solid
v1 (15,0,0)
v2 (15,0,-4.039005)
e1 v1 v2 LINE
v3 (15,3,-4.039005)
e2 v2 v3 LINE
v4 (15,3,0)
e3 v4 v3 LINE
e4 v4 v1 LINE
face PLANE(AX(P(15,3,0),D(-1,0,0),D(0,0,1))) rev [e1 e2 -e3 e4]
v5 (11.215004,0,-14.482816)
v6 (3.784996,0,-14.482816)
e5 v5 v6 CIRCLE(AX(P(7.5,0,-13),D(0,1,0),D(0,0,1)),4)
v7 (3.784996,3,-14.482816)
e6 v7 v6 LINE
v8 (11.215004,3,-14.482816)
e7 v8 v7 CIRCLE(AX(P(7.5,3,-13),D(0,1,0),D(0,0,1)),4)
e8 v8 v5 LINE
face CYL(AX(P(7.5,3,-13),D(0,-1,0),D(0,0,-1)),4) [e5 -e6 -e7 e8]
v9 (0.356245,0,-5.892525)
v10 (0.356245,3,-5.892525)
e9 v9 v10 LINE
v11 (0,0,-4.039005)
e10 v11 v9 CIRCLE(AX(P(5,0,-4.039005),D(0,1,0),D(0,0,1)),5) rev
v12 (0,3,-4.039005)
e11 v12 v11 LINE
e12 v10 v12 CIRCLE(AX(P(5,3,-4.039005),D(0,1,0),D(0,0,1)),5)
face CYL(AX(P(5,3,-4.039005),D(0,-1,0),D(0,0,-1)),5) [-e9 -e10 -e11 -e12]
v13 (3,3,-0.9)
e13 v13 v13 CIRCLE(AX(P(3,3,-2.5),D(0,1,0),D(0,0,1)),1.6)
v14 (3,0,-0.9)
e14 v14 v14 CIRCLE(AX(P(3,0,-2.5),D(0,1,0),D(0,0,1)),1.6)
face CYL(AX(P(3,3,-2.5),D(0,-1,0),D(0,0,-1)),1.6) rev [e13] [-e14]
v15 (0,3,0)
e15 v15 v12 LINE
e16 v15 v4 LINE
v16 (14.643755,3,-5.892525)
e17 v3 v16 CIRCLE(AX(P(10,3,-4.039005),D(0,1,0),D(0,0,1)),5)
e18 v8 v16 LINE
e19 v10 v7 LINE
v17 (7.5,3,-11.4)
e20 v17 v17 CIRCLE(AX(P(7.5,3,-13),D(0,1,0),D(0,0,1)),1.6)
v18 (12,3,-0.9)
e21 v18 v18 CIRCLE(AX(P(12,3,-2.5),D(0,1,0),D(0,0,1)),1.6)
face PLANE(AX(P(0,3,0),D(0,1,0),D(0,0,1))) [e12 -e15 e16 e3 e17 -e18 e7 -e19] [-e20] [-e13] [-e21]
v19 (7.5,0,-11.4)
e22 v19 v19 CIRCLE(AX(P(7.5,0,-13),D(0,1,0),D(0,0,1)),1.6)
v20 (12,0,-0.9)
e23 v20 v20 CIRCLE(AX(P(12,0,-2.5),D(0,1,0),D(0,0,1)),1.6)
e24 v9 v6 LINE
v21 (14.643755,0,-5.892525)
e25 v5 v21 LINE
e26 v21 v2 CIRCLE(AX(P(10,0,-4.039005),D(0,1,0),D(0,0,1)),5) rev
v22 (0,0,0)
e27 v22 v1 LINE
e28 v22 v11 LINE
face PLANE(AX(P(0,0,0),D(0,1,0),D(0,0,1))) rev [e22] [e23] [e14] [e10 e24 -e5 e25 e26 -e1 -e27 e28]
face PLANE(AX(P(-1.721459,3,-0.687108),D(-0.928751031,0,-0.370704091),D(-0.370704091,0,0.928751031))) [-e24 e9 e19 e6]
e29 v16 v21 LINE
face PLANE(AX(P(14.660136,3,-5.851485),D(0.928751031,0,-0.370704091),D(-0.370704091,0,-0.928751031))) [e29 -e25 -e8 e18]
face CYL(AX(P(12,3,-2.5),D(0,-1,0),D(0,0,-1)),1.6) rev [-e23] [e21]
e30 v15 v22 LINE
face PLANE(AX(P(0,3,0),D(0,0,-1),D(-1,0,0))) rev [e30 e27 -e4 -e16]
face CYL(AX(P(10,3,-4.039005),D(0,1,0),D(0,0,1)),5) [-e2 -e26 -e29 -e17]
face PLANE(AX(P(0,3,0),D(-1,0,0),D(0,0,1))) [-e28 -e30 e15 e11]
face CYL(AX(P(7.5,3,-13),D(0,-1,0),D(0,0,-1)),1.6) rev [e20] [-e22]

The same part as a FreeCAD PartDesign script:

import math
import FreeCAD as App
import Part
import Sketcher

V = App.Vector
Q = App.Units.Quantity


def edges_at(feature, points):
    """Names of the edges that pass closest to the given points."""
    edges = feature.Shape.Edges
    near = lambda p: min(range(len(edges)), key=lambda i: edges[i].distToShape(Part.Vertex(*p))[0])
    return sorted({f"Edge{near(p) + 1}" for p in points})

doc = App.newDocument("Part")
body = doc.addObject("PartDesign::Body", "Body")

# Sketch on XZ plane
sketch1 = body.newObject("Sketcher::SketchObject", "Sketch")
sketch1.AttachmentSupport = (doc.getObject("XZ_Plane"), [""])
sketch1.MapMode = "FlatFace"
sketch1.addGeometry([
    Part.LineSegment(V(0, -5, 0), V(0, 0, 0)),  # 0
    Part.LineSegment(V(0, 0, 0), V(15, 0, 0)),  # 1
    Part.LineSegment(V(15, 0, 0), V(15, -5, 0)),  # 2
    Part.LineSegment(V(15, -5, 0), V(11.215004, -14.482816, 0)),  # 3
    Part.ArcOfCircle(Part.Circle(V(7.5, -13, 0), V(0, 0, 1), 4), math.radians(-158.240953), math.radians(-21.759047)),  # 4
    Part.LineSegment(V(3.784996, -14.482816, 0), V(0, -5, 0)),  # 5
    Part.Circle(V(3, -2.5, 0), V(0, 0, 1), 1.6),  # 6
    Part.Circle(V(12, -2.5, 0), V(0, 0, 1), 1.6),  # 7
    Part.Circle(V(7.5, -13, 0), V(0, 0, 1), 1.6),  # 8
], False)
sketch1.addConstraint([
    Sketcher.Constraint("Coincident", 0, 2, 1, 1),
    Sketcher.Constraint("Coincident", 1, 2, 2, 1),
    Sketcher.Constraint("Coincident", 2, 2, 3, 1),
    Sketcher.Constraint("Tangent", 3, 2, 4, 2),
    Sketcher.Constraint("Tangent", 4, 1, 5, 1),
    Sketcher.Constraint("Coincident", 5, 2, 0, 1),
    Sketcher.Constraint("Vertical", 0),
    Sketcher.Constraint("Horizontal", 1),
    Sketcher.Constraint("Vertical", 2),
    Sketcher.Constraint("Coincident", 0, 2, -1, 1),
    Sketcher.Constraint("Coincident", 8, 3, 4, 3),
    Sketcher.Constraint("Equal", 6, 7),
    Sketcher.Constraint("Equal", 7, 8),
    Sketcher.Constraint("Horizontal", 6, 3, 7, 3),
    Sketcher.Constraint("Horizontal", 3, 2, 4, 1),
    Sketcher.Constraint("Horizontal", 2, 2, 5, 2),
    Sketcher.Constraint("Radius", 4, Q("4 mm")),
    Sketcher.Constraint("Diameter", 6, Q("3.2 mm")),
    Sketcher.Constraint("DistanceX", 1, 1, 1, 2, Q("15 mm")),
    Sketcher.Constraint("DistanceY", 0, 1, 0, 2, Q("5 mm")),
    Sketcher.Constraint("DistanceY", 4, 3, -1, 1, Q("13 mm")),
    Sketcher.Constraint("DistanceX", -1, 1, 6, 3, Q("3 mm")),
    Sketcher.Constraint("DistanceX", -1, 1, 7, 3, Q("12 mm")),
    Sketcher.Constraint("DistanceY", 6, 3, -1, 1, Q("2.5 mm")),
])
pad1 = body.newObject("PartDesign::Pad", "Pad")
pad1.Profile = sketch1
pad1.Length = 3
pad1.Reversed = True
doc.recompute()

fillet = body.newObject("PartDesign::Fillet", "Fillet")
fillet.Base = (pad1, edges_at(pad1, [(15, 1.5, -5), (0, 1.5, -5)]))
fillet.Radius = 5

doc.recompute()
